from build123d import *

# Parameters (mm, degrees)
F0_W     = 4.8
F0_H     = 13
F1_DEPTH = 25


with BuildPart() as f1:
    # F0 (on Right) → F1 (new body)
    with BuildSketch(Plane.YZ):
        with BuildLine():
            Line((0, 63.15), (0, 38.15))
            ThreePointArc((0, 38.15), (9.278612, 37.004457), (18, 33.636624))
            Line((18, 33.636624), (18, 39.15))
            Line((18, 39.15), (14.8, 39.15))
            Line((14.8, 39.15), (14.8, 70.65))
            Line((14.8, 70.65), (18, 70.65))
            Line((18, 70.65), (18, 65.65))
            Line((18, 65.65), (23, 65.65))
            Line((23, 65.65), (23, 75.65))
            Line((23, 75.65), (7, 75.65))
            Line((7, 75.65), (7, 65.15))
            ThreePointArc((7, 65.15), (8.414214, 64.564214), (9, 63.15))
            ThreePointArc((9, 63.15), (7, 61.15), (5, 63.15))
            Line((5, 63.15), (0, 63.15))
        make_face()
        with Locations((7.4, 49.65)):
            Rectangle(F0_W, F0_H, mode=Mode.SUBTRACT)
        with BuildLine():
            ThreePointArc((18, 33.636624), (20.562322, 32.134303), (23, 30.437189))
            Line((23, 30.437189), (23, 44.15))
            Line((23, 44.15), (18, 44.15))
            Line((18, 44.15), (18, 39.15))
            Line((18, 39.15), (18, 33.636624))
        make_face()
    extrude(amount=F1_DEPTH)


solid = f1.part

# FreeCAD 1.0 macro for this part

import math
import FreeCAD as App
import Part
import Sketcher

V = App.Vector


def add_polygon(sketch, points):
    """Adds a closed chain of lines whose ends are joined by coincident constraints."""
    first, n = sketch.GeometryCount, len(points)
    for a, b in zip(points, points[1:] + points[:1]):
        sketch.addGeometry(Part.LineSegment(App.Vector(*a, 0), App.Vector(*b, 0)), False)
    for i in range(n):
        sketch.addConstraint(Sketcher.Constraint("Coincident", first + i, 2, first + (i + 1) % n, 1))

doc = App.newDocument("Part")
body = doc.addObject("PartDesign::Body", "Body")

# Sketch on YZ plane
sketch1 = doc.addObject("Sketcher::SketchObject", "Sketch")
body.addObject(sketch1)
sketch1.AttachmentSupport = (doc.YZ_Plane, [""])
sketch1.MapMode = "FlatFace"
sketch1.addGeometry(Part.LineSegment(V(0, 63.15, 0), V(0, 38.15, 0)), False)  # 0
sketch1.addGeometry(Part.ArcOfCircle(Part.Circle(V(-0.000002, -0.000003, 0), V(0, 0, 1), 38.150003), math.radians(61.847384), math.radians(89.999998)), False)  # 1
sketch1.addGeometry(Part.ArcOfCircle(Part.Circle(V(0.000096, 0.00015, 0), V(0, 0, 1), 38.149822), math.radians(52.923296), math.radians(61.847405)), False)  # 2
sketch1.addGeometry(Part.LineSegment(V(23, 30.437189, 0), V(23, 44.15, 0)), False)  # 3
sketch1.addGeometry(Part.LineSegment(V(23, 44.15, 0), V(18, 44.15, 0)), False)  # 4
sketch1.addGeometry(Part.LineSegment(V(18, 44.15, 0), V(18, 39.15, 0)), False)  # 5
sketch1.addGeometry(Part.LineSegment(V(18, 39.15, 0), V(14.8, 39.15, 0)), False)  # 6
sketch1.addGeometry(Part.LineSegment(V(14.8, 39.15, 0), V(14.8, 70.65, 0)), False)  # 7
sketch1.addGeometry(Part.LineSegment(V(14.8, 70.65, 0), V(18, 70.65, 0)), False)  # 8
sketch1.addGeometry(Part.LineSegment(V(18, 70.65, 0), V(18, 65.65, 0)), False)  # 9
sketch1.addGeometry(Part.LineSegment(V(18, 65.65, 0), V(23, 65.65, 0)), False)  # 10
sketch1.addGeometry(Part.LineSegment(V(23, 65.65, 0), V(23, 75.65, 0)), False)  # 11
sketch1.addGeometry(Part.LineSegment(V(23, 75.65, 0), V(7, 75.65, 0)), False)  # 12
sketch1.addGeometry(Part.LineSegment(V(7, 75.65, 0), V(7, 65.15, 0)), False)  # 13
sketch1.addGeometry(Part.ArcOfCircle(Part.Circle(V(7.000001, 63.150001, 0), V(0, 0, 1), 1.999999), math.radians(-0.000043), math.radians(90.000043)), False)  # 14
sketch1.addGeometry(Part.ArcOfCircle(Part.Circle(V(7, 63.15, 0), V(0, 0, 1), 2), math.radians(180), math.radians(360)), False)  # 15
sketch1.addGeometry(Part.LineSegment(V(5, 63.15, 0), V(0, 63.15, 0)), False)  # 16
add_polygon(sketch1, [(9.8, 43.15), (5, 43.15), (5, 56.15), (9.8, 56.15)])  # lines 17-20
sketch1.addConstraint([
    Sketcher.Constraint("Coincident", 0, 2, 1, 2),
    Sketcher.Constraint("Tangent", 1, 1, 2, 2),
    Sketcher.Constraint("Coincident", 2, 1, 3, 1),
    Sketcher.Constraint("Coincident", 3, 2, 4, 1),
    Sketcher.Constraint("Coincident", 4, 2, 5, 1),
    Sketcher.Constraint("Coincident", 5, 2, 6, 1),
    Sketcher.Constraint("Coincident", 6, 2, 7, 1),
    Sketcher.Constraint("Coincident", 7, 2, 8, 1),
    Sketcher.Constraint("Coincident", 8, 2, 9, 1),
    Sketcher.Constraint("Coincident", 9, 2, 10, 1),
    Sketcher.Constraint("Coincident", 10, 2, 11, 1),
    Sketcher.Constraint("Coincident", 11, 2, 12, 1),
    Sketcher.Constraint("Coincident", 12, 2, 13, 1),
    Sketcher.Constraint("Coincident", 13, 2, 14, 2),
    Sketcher.Constraint("Tangent", 14, 1, 15, 2),
    Sketcher.Constraint("Coincident", 15, 1, 16, 1),
    Sketcher.Constraint("Coincident", 16, 2, 0, 1),
    Sketcher.Constraint("Vertical", 0),
    Sketcher.Constraint("Vertical", 3),
    Sketcher.Constraint("Horizontal", 4),
    Sketcher.Constraint("Vertical", 5),
    Sketcher.Constraint("Horizontal", 6),
    Sketcher.Constraint("Vertical", 7),
    Sketcher.Constraint("Horizontal", 8),
    Sketcher.Constraint("Vertical", 9),
    Sketcher.Constraint("Horizontal", 10),
    Sketcher.Constraint("Vertical", 11),
    Sketcher.Constraint("Horizontal", 12),
    Sketcher.Constraint("Vertical", 13),
    Sketcher.Constraint("Horizontal", 16),
    Sketcher.Constraint("Horizontal", 17),
    Sketcher.Constraint("Vertical", 18),
    Sketcher.Constraint("Horizontal", 19),
    Sketcher.Constraint("Vertical", 20),
    Sketcher.Constraint("Coincident", 1, 3, -1, 1),
    Sketcher.Constraint("Equal", 14, 15),
    Sketcher.Constraint("PointOnObject", 0, 2, -2),
    Sketcher.Constraint("Horizontal", 15, 3, 14, 1),
    Sketcher.Constraint("Horizontal", 14, 1, 15, 1),
    Sketcher.Constraint("Vertical", 1, 1, 4, 2),
    Sketcher.Constraint("Vertical", 5, 2, 8, 2),
    Sketcher.Constraint("Vertical", 3, 2, 10, 2),
    Sketcher.Constraint("Vertical", 15, 3, 12, 2),
    Sketcher.Constraint("Vertical", 15, 1, 17, 2),
    Sketcher.Constraint("Equal", 10, 16),
    Sketcher.Constraint("Equal", 16, 5),
    Sketcher.Constraint("Equal", 5, 9),
    Sketcher.Constraint("Radius", 14, 1.999999),
    Sketcher.Constraint("DistanceX", 4, 2, 4, 1, 5.0),
    Sketcher.Constraint("DistanceX", 12, 2, 12, 1, 16.0),
    Sketcher.Constraint("DistanceY", 0, 2, 0, 1, 25.0),
    Sketcher.Constraint("DistanceY", 11, 1, 11, 2, 10.0),
    Sketcher.Constraint("DistanceY", 18, 1, 18, 2, 13.0),
    Sketcher.Constraint("DistanceX", 6, 2, 6, 1, 3.2),
    Sketcher.Constraint("DistanceX", 17, 2, 17, 1, 4.8),
    Sketcher.Constraint("DistanceY", 7, 1, 7, 2, 31.5),
    Sketcher.Constraint("DistanceY", 13, 2, 13, 1, 10.5),
    Sketcher.Constraint("DistanceY", 0, 2, 17, 2, 5.0),
    Sketcher.Constraint("DistanceY", -1, 1, 14, 3, 63.150001),
    Sketcher.Constraint("Radius", 2, 38.149822),
])
pad1 = doc.addObject("PartDesign::Pad", "Pad")
body.addObject(pad1)
pad1.Profile = sketch1
pad1.Length = 25

doc.recompute()
